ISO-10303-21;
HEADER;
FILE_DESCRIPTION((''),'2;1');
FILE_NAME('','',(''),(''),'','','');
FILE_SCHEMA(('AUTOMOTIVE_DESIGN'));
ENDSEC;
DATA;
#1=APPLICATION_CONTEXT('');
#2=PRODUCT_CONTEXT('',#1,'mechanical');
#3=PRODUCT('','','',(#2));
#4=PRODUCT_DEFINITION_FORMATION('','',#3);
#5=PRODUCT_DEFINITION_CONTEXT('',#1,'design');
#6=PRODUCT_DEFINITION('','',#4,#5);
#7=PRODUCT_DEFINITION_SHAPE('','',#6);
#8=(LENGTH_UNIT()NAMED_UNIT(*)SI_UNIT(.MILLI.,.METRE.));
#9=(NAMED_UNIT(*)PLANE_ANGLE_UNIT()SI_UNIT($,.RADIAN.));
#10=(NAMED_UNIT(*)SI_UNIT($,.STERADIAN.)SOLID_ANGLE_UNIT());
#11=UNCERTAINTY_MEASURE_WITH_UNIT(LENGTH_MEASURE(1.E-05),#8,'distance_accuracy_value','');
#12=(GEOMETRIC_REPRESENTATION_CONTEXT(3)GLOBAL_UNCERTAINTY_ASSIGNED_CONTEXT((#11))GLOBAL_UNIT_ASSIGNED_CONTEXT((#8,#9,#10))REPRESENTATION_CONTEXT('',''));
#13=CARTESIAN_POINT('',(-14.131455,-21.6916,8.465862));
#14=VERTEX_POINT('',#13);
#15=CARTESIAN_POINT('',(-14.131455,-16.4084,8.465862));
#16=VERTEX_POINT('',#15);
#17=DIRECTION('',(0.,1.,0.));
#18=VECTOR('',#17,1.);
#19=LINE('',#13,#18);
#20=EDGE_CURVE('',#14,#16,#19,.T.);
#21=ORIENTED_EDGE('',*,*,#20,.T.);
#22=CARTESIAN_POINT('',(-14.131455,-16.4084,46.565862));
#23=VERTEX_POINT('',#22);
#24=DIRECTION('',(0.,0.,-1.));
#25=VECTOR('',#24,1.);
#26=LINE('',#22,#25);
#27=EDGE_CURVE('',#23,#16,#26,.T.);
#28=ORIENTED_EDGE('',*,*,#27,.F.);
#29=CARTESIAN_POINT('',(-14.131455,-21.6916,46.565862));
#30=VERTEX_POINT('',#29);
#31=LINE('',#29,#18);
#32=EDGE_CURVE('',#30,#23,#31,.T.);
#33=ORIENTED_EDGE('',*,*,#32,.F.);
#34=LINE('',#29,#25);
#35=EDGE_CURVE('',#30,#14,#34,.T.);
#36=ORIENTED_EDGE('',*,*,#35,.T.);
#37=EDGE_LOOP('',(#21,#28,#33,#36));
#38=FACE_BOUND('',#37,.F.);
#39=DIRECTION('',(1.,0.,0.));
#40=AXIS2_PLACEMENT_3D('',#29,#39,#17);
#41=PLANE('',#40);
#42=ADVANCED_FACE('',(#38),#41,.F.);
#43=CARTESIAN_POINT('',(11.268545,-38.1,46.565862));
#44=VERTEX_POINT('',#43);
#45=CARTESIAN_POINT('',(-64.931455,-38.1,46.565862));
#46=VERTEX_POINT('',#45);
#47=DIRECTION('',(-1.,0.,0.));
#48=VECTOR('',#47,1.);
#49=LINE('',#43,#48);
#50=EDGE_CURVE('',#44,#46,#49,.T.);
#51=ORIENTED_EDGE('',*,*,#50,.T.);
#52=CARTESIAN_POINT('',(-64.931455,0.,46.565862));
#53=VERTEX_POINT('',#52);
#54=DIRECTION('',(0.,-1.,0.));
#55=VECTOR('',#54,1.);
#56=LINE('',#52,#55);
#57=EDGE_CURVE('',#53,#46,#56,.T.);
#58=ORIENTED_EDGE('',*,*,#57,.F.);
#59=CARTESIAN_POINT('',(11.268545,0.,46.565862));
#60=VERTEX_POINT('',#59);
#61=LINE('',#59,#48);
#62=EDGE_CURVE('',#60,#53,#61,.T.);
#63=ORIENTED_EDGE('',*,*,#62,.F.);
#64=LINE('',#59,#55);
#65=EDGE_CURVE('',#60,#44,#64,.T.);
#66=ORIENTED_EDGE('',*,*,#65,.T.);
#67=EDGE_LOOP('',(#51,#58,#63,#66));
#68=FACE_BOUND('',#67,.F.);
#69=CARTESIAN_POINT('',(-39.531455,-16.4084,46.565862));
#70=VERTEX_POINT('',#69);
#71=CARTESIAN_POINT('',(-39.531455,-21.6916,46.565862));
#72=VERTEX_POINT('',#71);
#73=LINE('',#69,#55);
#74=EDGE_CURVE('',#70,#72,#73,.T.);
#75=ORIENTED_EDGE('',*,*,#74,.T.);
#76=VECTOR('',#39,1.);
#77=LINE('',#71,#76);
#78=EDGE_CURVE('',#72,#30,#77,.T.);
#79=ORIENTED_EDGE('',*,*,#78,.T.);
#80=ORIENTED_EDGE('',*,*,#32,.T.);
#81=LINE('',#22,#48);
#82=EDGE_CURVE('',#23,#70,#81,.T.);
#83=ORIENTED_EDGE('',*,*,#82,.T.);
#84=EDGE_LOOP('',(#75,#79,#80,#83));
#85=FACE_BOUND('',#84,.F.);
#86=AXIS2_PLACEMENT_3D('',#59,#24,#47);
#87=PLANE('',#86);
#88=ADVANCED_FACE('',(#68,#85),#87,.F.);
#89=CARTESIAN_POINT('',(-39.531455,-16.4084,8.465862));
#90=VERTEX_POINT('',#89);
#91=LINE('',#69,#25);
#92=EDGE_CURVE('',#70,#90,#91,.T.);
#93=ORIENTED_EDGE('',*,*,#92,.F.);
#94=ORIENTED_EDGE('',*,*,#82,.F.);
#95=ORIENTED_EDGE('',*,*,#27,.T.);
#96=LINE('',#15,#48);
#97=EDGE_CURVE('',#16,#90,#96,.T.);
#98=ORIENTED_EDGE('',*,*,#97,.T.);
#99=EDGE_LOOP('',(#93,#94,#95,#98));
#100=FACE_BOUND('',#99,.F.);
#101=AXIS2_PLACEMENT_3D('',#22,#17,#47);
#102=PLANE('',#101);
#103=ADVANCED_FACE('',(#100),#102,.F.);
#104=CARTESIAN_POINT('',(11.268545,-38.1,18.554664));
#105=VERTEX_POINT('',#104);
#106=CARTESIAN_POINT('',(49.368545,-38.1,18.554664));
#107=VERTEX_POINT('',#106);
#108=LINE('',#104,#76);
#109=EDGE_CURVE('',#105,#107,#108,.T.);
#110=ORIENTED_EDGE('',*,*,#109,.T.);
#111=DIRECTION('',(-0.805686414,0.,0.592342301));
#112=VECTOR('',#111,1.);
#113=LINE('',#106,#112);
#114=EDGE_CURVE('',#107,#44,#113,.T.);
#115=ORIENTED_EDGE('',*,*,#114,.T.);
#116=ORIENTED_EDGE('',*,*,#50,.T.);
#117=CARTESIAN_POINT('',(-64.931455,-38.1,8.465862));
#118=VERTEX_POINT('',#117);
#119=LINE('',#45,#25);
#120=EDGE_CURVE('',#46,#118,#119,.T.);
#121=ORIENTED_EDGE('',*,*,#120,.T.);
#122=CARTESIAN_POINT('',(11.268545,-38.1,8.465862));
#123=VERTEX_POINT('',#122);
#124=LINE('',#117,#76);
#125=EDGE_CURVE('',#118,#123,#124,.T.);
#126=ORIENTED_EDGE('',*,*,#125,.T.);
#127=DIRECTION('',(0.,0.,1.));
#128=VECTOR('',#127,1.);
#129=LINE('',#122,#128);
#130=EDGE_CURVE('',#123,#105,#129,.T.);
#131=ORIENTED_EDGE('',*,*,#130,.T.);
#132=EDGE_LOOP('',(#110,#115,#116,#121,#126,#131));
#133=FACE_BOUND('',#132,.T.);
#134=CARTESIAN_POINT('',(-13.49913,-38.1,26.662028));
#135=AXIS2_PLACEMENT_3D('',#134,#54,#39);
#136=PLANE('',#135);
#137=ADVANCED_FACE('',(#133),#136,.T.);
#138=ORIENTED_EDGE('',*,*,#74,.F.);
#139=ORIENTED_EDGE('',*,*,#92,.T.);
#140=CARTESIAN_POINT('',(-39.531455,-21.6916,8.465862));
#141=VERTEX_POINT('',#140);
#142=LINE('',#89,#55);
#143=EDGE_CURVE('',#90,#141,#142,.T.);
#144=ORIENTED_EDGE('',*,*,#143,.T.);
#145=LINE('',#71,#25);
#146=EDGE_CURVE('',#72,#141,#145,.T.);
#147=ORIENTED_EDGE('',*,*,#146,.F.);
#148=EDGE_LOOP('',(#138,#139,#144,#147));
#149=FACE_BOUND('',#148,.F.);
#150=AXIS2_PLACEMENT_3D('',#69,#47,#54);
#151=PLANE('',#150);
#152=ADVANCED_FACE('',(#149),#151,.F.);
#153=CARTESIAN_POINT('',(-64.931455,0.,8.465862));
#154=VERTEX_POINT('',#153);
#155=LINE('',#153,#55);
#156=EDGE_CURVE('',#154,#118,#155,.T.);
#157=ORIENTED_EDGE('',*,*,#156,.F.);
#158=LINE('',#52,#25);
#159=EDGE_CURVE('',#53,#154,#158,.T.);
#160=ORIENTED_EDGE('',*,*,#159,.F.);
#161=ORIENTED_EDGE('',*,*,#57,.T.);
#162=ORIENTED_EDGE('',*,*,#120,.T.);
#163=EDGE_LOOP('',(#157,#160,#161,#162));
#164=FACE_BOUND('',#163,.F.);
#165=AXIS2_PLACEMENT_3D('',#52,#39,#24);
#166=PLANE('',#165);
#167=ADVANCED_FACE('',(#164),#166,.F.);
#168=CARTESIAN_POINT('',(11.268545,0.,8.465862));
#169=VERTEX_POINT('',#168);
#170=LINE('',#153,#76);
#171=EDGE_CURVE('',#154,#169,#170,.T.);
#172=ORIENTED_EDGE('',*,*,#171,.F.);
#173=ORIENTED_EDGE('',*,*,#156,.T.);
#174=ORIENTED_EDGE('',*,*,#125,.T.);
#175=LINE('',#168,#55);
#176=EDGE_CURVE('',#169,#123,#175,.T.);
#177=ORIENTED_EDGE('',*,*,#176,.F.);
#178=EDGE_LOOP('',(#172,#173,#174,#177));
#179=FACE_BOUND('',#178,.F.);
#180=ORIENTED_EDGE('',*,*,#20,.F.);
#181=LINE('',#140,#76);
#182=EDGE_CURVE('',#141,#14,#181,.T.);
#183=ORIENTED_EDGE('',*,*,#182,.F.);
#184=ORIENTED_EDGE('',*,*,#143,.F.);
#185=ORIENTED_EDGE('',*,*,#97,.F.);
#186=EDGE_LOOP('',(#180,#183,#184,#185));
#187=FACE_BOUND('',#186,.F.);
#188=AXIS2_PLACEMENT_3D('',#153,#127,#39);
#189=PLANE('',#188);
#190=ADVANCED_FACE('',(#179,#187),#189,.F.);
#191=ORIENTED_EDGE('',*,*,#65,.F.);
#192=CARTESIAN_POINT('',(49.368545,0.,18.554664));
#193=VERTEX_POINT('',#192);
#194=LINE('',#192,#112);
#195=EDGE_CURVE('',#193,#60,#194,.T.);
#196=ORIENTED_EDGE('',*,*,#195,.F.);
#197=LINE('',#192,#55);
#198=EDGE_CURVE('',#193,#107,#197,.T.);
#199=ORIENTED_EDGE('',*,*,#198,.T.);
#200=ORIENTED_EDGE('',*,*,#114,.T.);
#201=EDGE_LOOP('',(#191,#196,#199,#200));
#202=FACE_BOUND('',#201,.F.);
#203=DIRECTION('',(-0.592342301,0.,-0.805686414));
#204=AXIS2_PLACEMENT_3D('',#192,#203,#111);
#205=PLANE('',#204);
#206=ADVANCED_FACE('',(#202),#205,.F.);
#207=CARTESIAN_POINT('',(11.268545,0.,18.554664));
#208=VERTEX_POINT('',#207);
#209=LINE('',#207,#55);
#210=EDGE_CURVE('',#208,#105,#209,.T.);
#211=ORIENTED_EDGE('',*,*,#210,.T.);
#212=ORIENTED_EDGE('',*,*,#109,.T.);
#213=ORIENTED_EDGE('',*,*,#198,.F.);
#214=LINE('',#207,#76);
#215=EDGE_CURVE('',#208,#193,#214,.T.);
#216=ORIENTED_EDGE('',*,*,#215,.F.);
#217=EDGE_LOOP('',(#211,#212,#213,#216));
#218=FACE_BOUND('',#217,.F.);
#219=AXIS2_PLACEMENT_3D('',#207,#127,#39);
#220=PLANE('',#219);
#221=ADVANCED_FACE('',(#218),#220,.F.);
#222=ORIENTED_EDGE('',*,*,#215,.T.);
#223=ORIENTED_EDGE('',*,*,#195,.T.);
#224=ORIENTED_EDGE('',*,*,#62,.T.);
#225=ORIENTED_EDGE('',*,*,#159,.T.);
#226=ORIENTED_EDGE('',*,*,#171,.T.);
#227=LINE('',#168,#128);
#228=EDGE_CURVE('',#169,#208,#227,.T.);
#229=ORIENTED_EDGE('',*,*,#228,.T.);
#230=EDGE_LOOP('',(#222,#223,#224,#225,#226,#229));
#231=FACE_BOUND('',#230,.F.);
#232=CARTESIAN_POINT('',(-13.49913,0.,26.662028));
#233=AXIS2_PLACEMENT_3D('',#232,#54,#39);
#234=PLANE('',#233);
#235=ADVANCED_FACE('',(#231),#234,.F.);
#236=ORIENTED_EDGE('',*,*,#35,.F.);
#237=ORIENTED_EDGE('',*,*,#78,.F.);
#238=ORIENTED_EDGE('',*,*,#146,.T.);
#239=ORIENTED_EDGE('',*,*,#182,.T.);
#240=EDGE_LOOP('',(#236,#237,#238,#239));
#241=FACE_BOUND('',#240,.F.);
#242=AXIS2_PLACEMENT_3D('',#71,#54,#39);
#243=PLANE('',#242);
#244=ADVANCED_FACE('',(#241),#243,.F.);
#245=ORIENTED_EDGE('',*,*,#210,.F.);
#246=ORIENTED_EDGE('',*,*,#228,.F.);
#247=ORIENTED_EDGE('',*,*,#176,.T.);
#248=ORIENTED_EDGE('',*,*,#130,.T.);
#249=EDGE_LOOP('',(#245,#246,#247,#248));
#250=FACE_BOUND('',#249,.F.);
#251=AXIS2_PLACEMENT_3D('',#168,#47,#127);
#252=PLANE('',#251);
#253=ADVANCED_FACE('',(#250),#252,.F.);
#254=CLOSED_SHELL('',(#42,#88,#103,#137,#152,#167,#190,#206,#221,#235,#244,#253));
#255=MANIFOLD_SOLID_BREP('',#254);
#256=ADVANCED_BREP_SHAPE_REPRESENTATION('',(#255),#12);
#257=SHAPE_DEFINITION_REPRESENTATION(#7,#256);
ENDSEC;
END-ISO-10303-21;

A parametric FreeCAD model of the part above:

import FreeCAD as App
import Part
import Sketcher
from FreeCAD import Vector
Q = App.Units.Quantity

doc = App.newDocument("Part")
body = doc.addObject("PartDesign::Body", "Body")

# Sketch on XZ plane
sketch1 = body.newObject("Sketcher::SketchObject", "Sketch")
sketch1.AttachmentSupport = (doc.getObject("XZ_Plane"), [""])
sketch1.MapMode = "FlatFace"
sketch1.addGeometry([
    Part.LineSegment(Vector(-65, 8, 0), Vector(11, 8, 0)),  # 0
    Part.LineSegment(Vector(11, 8, 0), Vector(11, 19, 0)),  # 1
    Part.LineSegment(Vector(11, 19, 0), Vector(49, 19, 0)),  # 2
    Part.LineSegment(Vector(49, 19, 0), Vector(11, 47, 0)),  # 3
    Part.LineSegment(Vector(11, 47, 0), Vector(-65, 47, 0)),  # 4
    Part.LineSegment(Vector(-65, 47, 0), Vector(-65, 8, 0)),  # 5
], False)
sketch1.addConstraint([
    Sketcher.Constraint("Coincident", 0, 2, 1, 1),
    Sketcher.Constraint("Coincident", 1, 2, 2, 1),
    Sketcher.Constraint("Coincident", 2, 2, 3, 1),
    Sketcher.Constraint("Coincident", 3, 2, 4, 1),
    Sketcher.Constraint("Coincident", 4, 2, 5, 1),
    Sketcher.Constraint("Coincident", 5, 2, 0, 1),
    Sketcher.Constraint("Horizontal", 0),
    Sketcher.Constraint("Vertical", 1),
    Sketcher.Constraint("Horizontal", 2),
    Sketcher.Constraint("Horizontal", 4),
    Sketcher.Constraint("Vertical", 5),
    Sketcher.Constraint("Vertical", 1, 2, 3, 2),
    Sketcher.Constraint("Equal", 2, 5),
    Sketcher.Constraint("DistanceX", 0, 1, 0, 2, Q("3 in")),
    Sketcher.Constraint("DistanceX", 2, 1, 2, 2, Q("1.5 in")),
    Sketcher.Constraint("DistanceY", 1, 1, 1, 2, 10.088802),
    Sketcher.Constraint("DistanceX", -1, 1, 0, 2, 11.268545),
    Sketcher.Constraint("DistanceY", -1, 1, 0, 2, 8.465862),
])
pad1 = body.newObject("PartDesign::Pad", "Pad")
pad1.Profile = sketch1
pad1.Length = Q("1.5 in")

# Sketch on XY plane
sketch2 = body.newObject("Sketcher::SketchObject", "Sketch001")
sketch2.AttachmentSupport = (doc.getObject("XY_Plane"), [""])
sketch2.MapMode = "FlatFace"
sketch2.AttachmentOffset = App.Placement(Vector(0, 0, 46.565862), App.Rotation())
sketch2.addGeometry([
    Part.LineSegment(Vector(-40, -22, 0), Vector(-14, -22, 0)),
    Part.LineSegment(Vector(-14, -22, 0), Vector(-14, -16, 0)),
    Part.LineSegment(Vector(-14, -16, 0), Vector(-40, -16, 0)),
    Part.LineSegment(Vector(-40, -16, 0), Vector(-40, -22, 0)),
], False)
sketch2.addConstraint([
    Sketcher.Constraint("Coincident", 0, 2, 1, 1),
    Sketcher.Constraint("Coincident", 1, 2, 2, 1),
    Sketcher.Constraint("Coincident", 2, 2, 3, 1),
    Sketcher.Constraint("Coincident", 3, 2, 0, 1),
    Sketcher.Constraint("Horizontal", 0),
    Sketcher.Constraint("Vertical", 1),
    Sketcher.Constraint("Horizontal", 2),
    Sketcher.Constraint("Vertical", 3),
    Sketcher.Constraint("DistanceX", 0, 1, 0, 2, Q("1 in")),
    Sketcher.Constraint("DistanceY", 1, 1, 1, 2, Q("0.208 in")),
    Sketcher.Constraint("DistanceY", 0, 2, -1, 1, Q("0.854 in")),
    Sketcher.Constraint("DistanceX", 0, 2, -1, 1, 14.131455),
])
pocket1 = body.newObject("PartDesign::Pocket", "Pocket")
pocket1.Profile = sketch2
pocket1.Length = Q("1.5 in")

doc.recompute()
